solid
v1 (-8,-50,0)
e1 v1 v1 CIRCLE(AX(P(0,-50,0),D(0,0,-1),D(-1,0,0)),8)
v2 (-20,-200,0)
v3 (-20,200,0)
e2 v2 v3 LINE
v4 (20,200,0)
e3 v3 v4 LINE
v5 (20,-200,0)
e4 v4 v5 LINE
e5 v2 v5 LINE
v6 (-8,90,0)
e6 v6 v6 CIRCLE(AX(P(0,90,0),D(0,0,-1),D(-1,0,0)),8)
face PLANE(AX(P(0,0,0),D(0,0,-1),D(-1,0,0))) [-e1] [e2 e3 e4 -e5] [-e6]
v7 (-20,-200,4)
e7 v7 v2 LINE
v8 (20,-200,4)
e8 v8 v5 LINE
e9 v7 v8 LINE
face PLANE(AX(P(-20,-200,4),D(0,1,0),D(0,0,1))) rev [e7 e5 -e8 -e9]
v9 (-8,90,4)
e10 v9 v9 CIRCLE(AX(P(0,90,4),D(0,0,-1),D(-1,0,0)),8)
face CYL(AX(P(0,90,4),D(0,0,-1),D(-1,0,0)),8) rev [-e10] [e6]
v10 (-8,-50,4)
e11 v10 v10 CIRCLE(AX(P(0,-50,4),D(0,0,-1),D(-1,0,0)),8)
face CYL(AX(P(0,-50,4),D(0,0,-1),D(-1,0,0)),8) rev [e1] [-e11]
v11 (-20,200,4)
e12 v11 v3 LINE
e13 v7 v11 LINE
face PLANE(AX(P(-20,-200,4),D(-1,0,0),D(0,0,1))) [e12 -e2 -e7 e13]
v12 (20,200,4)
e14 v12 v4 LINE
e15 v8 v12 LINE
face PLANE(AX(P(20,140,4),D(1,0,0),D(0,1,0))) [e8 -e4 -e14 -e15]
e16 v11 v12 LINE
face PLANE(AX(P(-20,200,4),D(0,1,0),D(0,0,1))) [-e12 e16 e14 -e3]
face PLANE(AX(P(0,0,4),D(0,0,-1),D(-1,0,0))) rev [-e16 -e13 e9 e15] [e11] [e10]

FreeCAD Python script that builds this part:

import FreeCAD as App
import Part
import Sketcher
Q = App.Units.Quantity


def add_polygon(sketch, points):
    """Adds a closed chain of lines whose ends are joined by coincident constraints."""
    first, n = sketch.GeometryCount, len(points)
    for a, b in zip(points, points[1:] + points[:1]):
        sketch.addGeometry(Part.LineSegment(App.Vector(*a, 0), App.Vector(*b, 0)), False)
    for i in range(n):
        sketch.addConstraint(Sketcher.Constraint("Coincident", first + i, 2, first + (i + 1) % n, 1))

doc = App.newDocument("Part")
body = doc.addObject("PartDesign::Body", "Body")

# Sketch on XY plane
sketch1 = body.newObject("Sketcher::SketchObject", "Sketch")
sketch1.AttachmentSupport = (doc.getObject("XY_Plane"), [""])
sketch1.MapMode = "FlatFace"
add_polygon(sketch1, [(-20, -200), (20, -200), (20, 200), (-20, 200)])  # lines 0-3
sketch1.addConstraint([
    Sketcher.Constraint("Horizontal", 0),
    Sketcher.Constraint("Vertical", 1),
    Sketcher.Constraint("Horizontal", 2),
    Sketcher.Constraint("Vertical", 3),
    Sketcher.Constraint("Symmetric", 0, 2, 2, 2, -1, 1),
    Sketcher.Constraint("DistanceX", 0, 1, 0, 2, Q("40 mm")),
    Sketcher.Constraint("DistanceY", 1, 1, 1, 2, Q("400 mm")),
])
pad1 = body.newObject("PartDesign::Pad", "Pad")
pad1.Profile = sketch1
pad1.Length = 4

# Sketch on XY plane
sketch2 = body.newObject("Sketcher::SketchObject", "Sketch001")
sketch2.AttachmentSupport = (doc.getObject("XY_Plane"), [""])
sketch2.MapMode = "FlatFace"
sketch2.addGeometry([
    Part.Circle(App.Vector(0, 90, 0), App.Vector(0, 0, 1), 8),
    Part.Circle(App.Vector(0, -50, 0), App.Vector(0, 0, 1), 8),
], False)
sketch2.addConstraint([
    Sketcher.Constraint("Equal", 0, 1),
    Sketcher.Constraint("PointOnObject", 0, 3, -2),
    Sketcher.Constraint("PointOnObject", 1, 3, -2),
    Sketcher.Constraint("Diameter", 0, Q("16 mm")),
    Sketcher.Constraint("DistanceY", -1, 1, 0, 3, Q("90 mm")),
    Sketcher.Constraint("DistanceY", 1, 3, -1, 1, Q("50 mm")),
])
pad2 = body.newObject("PartDesign::Pad", "Pad001")
pad2.Profile = sketch2
pad2.Length = 4

# Sketch on XY plane
sketch3 = body.newObject("Sketcher::SketchObject", "Sketch002")
sketch3.AttachmentSupport = (doc.getObject("XY_Plane"), [""])
sketch3.MapMode = "FlatFace"
sketch3.addGeometry([
    Part.Circle(App.Vector(0, 90, 0), App.Vector(0, 0, 1), 8),
    Part.Circle(App.Vector(0, -50, 0), App.Vector(0, 0, 1), 8),
], False)
sketch3.addConstraint([
    Sketcher.Constraint("Equal", 0, 1),
    Sketcher.Constraint("PointOnObject", 0, 3, -2),
    Sketcher.Constraint("PointOnObject", 1, 3, -2),
    Sketcher.Constraint("Diameter", 0, Q("16 mm")),
    Sketcher.Constraint("DistanceY", -1, 1, 0, 3, Q("90 mm")),
    Sketcher.Constraint("DistanceY", 1, 3, -1, 1, Q("50 mm")),
])
pocket1 = body.newObject("PartDesign::Pocket", "Pocket")
pocket1.Profile = sketch3
pocket1.Length = 4
pocket1.Reversed = True

doc.recompute()
